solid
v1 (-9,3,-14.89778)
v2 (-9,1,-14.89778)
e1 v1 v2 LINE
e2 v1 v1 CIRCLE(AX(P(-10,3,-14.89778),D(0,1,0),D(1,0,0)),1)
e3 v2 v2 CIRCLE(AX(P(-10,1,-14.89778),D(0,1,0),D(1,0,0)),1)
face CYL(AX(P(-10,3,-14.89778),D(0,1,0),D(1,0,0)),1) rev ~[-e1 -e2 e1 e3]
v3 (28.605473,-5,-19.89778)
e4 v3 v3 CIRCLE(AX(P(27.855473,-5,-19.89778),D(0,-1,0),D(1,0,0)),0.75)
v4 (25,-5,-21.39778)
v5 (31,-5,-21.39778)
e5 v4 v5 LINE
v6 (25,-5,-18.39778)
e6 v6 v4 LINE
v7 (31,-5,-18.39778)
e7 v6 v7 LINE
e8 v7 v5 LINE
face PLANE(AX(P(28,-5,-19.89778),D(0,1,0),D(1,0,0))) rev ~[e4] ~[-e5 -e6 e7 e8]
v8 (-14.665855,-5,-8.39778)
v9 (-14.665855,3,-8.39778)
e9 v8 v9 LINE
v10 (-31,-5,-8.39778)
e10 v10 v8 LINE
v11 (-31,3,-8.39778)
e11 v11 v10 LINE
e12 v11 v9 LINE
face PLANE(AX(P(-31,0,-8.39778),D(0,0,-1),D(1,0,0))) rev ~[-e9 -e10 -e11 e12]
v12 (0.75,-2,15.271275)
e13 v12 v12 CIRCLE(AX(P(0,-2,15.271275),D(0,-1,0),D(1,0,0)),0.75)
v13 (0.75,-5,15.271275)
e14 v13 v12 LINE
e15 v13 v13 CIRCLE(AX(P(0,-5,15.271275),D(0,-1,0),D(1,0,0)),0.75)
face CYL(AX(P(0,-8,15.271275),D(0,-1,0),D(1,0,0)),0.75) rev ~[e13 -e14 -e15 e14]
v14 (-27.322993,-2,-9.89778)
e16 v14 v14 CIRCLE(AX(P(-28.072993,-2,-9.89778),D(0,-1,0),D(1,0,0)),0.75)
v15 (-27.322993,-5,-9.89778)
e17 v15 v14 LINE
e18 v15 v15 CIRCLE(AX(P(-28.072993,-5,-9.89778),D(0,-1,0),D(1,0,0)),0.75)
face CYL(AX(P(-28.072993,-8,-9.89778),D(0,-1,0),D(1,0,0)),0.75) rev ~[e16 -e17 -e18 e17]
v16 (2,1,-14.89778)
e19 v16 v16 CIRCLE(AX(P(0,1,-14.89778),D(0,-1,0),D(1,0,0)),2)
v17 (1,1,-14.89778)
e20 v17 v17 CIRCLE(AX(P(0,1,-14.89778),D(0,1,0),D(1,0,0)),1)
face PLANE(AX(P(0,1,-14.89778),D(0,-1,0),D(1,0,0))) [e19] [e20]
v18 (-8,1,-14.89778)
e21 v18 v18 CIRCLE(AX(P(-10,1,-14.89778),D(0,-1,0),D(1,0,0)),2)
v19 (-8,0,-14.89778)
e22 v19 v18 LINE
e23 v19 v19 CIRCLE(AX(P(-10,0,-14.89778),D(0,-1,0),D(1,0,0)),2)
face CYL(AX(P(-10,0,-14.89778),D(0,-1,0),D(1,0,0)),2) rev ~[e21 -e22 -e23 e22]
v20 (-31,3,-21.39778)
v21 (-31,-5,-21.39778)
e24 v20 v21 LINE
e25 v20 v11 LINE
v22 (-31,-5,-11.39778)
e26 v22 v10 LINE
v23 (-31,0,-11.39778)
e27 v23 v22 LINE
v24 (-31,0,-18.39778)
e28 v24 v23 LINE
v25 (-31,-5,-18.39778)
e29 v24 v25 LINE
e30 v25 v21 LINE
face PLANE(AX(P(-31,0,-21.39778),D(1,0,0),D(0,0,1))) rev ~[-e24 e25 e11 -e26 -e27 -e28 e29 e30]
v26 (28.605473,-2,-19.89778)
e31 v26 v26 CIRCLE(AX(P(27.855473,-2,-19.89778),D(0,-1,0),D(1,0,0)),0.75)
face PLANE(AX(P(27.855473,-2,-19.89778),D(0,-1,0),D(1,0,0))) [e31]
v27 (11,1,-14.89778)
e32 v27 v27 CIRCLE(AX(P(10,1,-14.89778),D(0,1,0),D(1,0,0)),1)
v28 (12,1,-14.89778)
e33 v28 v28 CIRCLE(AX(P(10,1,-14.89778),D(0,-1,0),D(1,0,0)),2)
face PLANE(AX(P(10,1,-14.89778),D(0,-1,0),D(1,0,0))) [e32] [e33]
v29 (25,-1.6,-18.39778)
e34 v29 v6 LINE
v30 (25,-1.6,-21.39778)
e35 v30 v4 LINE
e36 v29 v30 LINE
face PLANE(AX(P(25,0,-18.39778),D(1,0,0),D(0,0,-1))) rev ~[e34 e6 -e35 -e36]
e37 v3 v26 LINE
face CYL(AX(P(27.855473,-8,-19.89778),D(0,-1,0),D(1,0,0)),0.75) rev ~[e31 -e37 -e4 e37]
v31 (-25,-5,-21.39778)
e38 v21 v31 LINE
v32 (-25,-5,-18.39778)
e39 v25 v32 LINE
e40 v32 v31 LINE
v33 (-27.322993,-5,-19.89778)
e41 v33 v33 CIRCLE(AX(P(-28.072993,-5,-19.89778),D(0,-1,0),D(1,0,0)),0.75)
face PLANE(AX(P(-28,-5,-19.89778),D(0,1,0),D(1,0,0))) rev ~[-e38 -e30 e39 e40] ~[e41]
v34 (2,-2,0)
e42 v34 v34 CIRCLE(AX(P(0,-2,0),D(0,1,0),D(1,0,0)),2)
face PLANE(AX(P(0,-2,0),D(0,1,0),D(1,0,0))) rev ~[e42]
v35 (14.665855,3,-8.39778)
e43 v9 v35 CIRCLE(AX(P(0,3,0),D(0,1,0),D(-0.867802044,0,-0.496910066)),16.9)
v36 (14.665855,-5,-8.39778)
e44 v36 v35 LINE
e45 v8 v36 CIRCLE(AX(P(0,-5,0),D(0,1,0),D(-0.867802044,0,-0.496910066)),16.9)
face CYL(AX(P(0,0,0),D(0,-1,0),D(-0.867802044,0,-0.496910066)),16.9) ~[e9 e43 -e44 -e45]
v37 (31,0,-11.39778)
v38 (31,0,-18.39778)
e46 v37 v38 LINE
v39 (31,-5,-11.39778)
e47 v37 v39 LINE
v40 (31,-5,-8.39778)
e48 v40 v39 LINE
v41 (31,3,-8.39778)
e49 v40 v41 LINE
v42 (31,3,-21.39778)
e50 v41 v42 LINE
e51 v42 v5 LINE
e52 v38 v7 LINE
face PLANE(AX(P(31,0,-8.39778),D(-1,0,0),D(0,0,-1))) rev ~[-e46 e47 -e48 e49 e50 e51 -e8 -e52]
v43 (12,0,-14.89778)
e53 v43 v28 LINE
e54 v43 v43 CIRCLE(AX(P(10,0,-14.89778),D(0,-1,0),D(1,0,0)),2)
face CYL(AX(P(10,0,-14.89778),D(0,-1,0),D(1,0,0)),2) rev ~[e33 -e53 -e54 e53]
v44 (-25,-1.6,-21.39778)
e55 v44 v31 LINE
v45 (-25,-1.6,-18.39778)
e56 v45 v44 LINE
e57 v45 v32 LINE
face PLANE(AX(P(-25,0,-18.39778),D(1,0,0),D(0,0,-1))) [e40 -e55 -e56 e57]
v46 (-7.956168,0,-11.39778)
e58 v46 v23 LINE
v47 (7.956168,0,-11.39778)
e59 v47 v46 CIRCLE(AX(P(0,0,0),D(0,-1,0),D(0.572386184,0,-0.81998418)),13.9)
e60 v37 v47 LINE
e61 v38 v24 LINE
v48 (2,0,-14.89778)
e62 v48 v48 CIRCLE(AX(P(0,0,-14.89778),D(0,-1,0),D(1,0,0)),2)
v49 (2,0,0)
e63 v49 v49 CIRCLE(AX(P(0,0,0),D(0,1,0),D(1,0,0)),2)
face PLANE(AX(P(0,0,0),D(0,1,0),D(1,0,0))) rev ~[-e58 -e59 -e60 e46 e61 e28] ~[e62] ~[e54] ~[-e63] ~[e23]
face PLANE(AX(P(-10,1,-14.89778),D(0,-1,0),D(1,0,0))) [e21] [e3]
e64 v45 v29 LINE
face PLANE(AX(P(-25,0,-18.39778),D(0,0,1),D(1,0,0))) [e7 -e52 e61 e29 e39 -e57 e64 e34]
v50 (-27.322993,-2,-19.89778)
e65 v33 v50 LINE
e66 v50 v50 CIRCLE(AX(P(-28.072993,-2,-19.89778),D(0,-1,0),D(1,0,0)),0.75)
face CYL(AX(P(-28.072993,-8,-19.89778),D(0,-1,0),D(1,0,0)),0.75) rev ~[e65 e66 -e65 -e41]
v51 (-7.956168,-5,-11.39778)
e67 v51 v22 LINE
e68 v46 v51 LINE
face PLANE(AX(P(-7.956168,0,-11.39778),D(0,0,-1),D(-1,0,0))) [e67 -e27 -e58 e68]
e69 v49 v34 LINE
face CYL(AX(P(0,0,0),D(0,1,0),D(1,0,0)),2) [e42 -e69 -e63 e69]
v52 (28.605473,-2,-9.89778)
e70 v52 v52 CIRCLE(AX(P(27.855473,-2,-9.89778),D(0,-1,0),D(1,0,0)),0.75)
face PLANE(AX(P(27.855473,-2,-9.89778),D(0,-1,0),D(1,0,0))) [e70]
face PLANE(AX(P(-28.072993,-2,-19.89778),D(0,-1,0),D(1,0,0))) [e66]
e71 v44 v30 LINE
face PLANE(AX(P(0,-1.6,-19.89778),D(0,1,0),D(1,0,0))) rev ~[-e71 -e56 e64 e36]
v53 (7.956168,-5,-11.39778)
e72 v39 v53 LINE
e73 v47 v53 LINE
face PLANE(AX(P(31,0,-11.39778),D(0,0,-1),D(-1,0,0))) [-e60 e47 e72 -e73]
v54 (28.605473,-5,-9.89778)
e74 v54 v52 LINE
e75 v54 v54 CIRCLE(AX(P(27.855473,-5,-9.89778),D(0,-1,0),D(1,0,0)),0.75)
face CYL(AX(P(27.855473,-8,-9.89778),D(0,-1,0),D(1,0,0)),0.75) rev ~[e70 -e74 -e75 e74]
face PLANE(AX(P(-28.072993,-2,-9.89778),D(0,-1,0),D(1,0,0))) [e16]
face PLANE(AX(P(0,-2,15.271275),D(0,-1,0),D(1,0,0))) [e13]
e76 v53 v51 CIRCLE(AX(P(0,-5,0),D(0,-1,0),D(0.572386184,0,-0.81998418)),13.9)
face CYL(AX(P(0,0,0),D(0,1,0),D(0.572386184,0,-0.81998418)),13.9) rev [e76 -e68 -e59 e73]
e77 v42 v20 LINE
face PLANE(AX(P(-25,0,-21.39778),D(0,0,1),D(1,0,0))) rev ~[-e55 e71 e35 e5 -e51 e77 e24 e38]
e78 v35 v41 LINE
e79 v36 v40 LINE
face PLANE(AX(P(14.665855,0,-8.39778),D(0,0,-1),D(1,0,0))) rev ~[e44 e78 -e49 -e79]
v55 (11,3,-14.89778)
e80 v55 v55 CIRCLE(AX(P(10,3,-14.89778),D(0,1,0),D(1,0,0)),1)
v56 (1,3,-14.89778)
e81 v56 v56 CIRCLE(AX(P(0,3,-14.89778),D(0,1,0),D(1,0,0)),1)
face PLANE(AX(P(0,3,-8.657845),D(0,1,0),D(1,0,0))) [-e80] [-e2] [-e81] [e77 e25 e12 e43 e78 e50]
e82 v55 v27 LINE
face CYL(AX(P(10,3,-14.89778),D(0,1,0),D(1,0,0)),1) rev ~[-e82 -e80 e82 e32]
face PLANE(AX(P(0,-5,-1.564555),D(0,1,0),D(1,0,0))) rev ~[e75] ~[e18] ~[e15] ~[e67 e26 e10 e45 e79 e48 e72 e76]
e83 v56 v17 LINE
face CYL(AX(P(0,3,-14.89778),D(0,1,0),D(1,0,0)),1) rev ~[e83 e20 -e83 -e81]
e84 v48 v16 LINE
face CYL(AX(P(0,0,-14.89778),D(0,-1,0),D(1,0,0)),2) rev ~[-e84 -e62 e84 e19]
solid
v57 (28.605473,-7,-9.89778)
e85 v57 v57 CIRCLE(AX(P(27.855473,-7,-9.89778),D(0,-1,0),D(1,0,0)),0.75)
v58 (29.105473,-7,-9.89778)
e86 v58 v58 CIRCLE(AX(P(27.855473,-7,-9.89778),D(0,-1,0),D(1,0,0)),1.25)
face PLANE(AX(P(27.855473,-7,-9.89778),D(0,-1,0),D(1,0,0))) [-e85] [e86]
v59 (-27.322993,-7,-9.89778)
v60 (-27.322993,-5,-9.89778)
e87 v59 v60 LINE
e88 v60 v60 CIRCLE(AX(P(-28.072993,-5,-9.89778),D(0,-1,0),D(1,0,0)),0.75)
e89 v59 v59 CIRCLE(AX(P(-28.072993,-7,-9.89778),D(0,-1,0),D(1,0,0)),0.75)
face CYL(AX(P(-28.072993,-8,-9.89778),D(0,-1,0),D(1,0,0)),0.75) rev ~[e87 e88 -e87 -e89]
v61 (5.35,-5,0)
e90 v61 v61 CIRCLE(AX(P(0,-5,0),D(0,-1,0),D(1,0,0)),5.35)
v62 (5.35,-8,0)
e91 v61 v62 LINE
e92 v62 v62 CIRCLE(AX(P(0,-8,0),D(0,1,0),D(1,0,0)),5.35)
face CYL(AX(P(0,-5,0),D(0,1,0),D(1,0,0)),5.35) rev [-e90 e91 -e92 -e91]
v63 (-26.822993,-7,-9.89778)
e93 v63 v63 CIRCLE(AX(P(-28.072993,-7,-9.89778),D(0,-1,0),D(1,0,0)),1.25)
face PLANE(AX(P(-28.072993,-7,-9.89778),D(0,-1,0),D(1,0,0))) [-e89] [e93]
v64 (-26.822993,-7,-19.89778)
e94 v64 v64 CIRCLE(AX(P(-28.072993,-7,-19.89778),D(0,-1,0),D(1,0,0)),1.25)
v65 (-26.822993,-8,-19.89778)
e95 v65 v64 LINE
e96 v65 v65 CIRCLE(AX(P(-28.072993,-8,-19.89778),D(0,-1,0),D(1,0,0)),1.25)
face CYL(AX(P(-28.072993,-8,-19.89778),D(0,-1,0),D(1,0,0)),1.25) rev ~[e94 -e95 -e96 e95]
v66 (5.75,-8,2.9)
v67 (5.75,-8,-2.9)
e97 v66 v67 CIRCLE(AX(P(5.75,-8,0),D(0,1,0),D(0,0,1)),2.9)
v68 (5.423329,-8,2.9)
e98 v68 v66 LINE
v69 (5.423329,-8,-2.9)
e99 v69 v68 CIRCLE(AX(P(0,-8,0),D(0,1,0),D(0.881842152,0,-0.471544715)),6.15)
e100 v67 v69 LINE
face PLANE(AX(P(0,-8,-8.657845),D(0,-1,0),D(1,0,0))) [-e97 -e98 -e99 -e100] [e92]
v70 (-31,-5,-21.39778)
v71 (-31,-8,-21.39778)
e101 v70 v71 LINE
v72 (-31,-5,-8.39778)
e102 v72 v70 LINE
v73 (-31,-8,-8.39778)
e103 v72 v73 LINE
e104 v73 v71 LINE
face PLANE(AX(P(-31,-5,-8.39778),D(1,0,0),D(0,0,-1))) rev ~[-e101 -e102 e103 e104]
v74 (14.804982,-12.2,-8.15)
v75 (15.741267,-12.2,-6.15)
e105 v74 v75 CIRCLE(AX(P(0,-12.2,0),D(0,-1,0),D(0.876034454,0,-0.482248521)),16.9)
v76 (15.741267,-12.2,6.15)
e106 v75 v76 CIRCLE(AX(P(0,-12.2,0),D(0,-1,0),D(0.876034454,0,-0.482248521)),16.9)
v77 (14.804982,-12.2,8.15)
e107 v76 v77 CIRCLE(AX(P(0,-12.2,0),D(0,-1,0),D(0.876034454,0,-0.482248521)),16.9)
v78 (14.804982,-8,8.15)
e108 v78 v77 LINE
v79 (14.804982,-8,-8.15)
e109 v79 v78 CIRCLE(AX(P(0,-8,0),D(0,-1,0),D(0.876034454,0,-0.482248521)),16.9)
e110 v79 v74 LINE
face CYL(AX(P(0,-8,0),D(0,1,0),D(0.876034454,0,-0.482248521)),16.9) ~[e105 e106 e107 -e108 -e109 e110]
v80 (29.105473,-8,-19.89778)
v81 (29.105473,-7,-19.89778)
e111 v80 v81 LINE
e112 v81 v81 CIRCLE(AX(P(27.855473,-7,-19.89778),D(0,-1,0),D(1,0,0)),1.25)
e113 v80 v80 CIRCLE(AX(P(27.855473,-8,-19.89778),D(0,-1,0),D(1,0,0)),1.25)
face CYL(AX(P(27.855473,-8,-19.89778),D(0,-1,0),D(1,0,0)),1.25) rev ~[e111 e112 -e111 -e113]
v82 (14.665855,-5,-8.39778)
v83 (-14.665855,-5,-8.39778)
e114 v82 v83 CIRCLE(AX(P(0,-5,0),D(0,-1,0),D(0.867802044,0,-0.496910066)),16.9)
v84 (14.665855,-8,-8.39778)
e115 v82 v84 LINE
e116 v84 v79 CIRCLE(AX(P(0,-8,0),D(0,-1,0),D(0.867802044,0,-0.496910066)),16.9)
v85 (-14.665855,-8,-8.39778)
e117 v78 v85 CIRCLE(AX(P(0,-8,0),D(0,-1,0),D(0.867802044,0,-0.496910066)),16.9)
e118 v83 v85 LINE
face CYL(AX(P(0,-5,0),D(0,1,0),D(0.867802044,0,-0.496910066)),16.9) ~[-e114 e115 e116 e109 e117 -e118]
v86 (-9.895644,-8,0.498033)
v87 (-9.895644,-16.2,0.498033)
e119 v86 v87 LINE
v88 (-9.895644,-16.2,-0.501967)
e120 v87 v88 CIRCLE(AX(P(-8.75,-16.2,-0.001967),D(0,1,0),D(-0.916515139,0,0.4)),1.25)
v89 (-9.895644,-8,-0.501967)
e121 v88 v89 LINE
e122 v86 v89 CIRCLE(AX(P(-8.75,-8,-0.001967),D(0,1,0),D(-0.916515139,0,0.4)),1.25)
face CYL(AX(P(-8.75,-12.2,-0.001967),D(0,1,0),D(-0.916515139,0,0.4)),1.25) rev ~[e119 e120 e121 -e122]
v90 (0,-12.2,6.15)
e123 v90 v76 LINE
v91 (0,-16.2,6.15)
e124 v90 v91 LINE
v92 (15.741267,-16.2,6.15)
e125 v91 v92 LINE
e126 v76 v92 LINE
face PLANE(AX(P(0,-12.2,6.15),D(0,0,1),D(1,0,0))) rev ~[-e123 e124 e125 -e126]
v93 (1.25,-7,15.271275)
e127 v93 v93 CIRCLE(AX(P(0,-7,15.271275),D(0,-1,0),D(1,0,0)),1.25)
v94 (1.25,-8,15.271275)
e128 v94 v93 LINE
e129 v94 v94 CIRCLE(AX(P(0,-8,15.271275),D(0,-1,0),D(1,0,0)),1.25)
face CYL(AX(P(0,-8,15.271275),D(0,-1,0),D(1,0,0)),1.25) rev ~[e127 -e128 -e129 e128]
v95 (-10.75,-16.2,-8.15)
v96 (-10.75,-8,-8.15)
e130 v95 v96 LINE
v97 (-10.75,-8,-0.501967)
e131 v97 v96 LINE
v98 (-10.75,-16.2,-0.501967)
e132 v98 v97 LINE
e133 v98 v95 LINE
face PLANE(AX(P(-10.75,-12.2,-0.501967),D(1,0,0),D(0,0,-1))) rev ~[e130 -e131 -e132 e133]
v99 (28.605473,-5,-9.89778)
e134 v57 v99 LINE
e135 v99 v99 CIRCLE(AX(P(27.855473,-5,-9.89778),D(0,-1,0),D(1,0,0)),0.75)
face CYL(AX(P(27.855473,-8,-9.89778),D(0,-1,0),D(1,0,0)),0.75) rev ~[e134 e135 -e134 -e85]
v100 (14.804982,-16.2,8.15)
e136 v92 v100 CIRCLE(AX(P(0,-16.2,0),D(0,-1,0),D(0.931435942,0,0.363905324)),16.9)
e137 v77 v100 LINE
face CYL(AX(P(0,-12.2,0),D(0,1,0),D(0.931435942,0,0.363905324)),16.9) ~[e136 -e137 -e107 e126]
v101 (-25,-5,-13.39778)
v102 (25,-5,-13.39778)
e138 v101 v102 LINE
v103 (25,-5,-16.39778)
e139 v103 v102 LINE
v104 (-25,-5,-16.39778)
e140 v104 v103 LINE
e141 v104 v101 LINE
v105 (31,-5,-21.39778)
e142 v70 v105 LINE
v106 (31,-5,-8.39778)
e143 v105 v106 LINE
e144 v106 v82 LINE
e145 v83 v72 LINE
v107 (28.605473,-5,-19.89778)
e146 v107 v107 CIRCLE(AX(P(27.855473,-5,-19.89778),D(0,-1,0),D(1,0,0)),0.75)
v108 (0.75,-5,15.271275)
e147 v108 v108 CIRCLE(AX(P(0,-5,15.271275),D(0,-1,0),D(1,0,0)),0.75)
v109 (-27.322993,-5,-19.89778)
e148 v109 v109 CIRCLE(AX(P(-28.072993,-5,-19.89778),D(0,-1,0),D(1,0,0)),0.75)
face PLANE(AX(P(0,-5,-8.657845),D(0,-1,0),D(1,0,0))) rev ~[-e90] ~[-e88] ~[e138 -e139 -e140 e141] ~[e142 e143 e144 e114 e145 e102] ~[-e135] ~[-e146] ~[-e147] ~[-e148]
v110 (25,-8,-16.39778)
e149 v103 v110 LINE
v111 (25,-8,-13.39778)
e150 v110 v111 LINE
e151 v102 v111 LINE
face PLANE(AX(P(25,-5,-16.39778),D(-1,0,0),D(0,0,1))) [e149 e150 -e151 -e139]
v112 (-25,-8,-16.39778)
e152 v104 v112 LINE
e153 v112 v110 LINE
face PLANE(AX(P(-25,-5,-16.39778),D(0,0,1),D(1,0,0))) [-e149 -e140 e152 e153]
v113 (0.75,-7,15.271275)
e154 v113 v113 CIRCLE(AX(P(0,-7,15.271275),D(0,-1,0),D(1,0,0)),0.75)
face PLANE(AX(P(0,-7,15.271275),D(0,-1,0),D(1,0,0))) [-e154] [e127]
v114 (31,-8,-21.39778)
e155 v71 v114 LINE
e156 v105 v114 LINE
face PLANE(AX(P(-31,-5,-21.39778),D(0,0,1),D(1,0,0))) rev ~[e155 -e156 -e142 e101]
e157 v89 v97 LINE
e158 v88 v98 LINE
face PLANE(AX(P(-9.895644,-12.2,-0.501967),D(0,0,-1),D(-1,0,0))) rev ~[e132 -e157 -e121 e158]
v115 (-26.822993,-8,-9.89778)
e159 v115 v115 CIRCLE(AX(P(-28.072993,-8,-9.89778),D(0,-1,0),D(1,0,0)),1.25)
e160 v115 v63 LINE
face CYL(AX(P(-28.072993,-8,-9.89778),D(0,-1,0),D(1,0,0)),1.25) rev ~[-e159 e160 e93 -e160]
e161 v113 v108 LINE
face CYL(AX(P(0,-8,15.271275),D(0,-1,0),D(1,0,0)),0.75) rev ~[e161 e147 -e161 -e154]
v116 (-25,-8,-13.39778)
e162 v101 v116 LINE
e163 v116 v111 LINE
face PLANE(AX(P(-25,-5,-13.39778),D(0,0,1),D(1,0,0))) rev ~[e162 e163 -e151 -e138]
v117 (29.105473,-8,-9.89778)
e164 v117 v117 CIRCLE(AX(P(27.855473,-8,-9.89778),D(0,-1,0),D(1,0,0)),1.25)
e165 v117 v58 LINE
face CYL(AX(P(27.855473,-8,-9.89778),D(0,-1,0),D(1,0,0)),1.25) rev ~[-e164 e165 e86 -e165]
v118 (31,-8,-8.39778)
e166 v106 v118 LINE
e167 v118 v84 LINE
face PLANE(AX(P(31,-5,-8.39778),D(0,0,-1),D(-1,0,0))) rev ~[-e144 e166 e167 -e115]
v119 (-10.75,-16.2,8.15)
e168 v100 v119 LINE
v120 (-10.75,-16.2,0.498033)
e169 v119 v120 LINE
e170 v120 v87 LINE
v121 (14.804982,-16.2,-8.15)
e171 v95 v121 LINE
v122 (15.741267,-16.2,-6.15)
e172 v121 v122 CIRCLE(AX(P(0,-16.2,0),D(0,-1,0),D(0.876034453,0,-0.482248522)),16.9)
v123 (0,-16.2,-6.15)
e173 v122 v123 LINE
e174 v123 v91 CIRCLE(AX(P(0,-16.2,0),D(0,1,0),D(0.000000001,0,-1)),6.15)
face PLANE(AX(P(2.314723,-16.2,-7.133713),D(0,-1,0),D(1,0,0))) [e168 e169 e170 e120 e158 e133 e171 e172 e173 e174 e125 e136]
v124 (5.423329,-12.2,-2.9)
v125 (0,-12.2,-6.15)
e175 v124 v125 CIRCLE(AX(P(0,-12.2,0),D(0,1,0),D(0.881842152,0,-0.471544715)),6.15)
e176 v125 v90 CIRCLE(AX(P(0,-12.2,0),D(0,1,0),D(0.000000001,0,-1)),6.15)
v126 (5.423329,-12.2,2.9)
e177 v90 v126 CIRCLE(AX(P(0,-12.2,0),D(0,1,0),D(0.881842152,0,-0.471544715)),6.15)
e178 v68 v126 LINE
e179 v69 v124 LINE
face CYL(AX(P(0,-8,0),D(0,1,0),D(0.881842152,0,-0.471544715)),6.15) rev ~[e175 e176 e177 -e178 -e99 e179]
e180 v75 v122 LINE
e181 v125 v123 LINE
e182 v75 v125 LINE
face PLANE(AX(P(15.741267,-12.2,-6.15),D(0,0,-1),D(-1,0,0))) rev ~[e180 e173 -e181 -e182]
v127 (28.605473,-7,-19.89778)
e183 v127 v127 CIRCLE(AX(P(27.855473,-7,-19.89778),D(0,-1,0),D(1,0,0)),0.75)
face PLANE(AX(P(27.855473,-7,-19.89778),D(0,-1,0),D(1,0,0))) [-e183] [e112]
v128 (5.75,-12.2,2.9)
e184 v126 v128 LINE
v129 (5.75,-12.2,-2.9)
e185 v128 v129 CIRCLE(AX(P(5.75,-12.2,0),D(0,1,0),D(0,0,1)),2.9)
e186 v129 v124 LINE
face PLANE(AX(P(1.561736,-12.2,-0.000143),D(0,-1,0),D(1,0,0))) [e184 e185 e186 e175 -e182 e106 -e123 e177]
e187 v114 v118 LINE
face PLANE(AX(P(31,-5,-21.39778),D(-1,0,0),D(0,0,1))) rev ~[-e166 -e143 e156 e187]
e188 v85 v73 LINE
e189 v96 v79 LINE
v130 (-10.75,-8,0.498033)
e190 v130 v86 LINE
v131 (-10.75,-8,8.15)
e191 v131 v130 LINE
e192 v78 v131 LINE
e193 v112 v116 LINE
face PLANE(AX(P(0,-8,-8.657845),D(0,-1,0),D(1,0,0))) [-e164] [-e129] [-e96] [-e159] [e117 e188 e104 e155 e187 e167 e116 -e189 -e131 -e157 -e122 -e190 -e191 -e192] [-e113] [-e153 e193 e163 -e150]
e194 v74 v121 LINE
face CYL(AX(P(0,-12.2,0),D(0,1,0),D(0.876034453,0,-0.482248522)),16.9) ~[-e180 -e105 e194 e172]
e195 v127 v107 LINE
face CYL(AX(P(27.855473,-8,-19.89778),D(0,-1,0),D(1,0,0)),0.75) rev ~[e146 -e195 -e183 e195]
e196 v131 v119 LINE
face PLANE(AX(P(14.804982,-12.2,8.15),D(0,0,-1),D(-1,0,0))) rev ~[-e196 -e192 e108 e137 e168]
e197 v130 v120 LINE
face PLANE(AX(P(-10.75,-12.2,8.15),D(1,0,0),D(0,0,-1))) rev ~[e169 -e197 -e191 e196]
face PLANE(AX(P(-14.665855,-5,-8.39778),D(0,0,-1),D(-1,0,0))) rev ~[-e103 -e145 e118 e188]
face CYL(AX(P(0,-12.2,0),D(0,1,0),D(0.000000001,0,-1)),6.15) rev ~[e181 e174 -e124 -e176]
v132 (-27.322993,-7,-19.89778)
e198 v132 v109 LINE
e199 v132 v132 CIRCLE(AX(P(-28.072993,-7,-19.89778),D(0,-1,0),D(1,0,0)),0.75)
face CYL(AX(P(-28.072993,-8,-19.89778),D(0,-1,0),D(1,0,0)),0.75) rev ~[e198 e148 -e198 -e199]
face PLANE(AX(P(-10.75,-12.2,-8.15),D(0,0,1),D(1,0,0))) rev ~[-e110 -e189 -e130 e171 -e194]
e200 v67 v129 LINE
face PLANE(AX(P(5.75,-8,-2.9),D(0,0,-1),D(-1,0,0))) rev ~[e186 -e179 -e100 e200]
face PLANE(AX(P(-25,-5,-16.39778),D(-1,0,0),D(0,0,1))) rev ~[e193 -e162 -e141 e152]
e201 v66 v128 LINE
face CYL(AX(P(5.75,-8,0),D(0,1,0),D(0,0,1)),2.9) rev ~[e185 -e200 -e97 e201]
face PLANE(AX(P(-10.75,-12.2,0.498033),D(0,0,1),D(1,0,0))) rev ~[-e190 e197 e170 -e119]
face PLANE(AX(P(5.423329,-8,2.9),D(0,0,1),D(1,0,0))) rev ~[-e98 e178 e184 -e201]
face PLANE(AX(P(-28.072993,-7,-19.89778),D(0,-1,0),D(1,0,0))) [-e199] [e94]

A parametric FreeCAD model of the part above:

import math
import FreeCAD as App
import Part
import Sketcher
from FreeCAD import Vector
Q = App.Units.Quantity

doc = App.newDocument("Part")
body = doc.addObject("PartDesign::Body", "Body")

# Sketch on XZ plane
sketch1 = body.newObject("Sketcher::SketchObject", "Sketch")
sketch1.AttachmentSupport = (doc.getObject("XZ_Plane"), [""])
sketch1.MapMode = "FlatFace"
sketch1.addGeometry(Part.LineSegment(Vector(-31, -11.4, 0), Vector(-31, -8.4, 0)), False)
sketch1.addGeometry(Part.LineSegment(Vector(-31, -8.4, 0), Vector(-14.7, -8.4, 0)), False)
sketch1.addGeometry(Part.ArcOfCircle(Part.Circle(Vector(0, 0, 0), Vector(0, 0, 1), 16.9), math.radians(-30), math.radians(210)), False)
sketch1.addGeometry(Part.LineSegment(Vector(14.7, -8.4, 0), Vector(31, -8.4, 0)), False)
sketch1.addGeometry(Part.LineSegment(Vector(31, -8.4, 0), Vector(31, -11.4, 0)), False)
sketch1.addGeometry(Part.LineSegment(Vector(31, -11.4, 0), Vector(8, -11.4, 0)), False)
sketch1.addGeometry(Part.ArcOfCircle(Part.Circle(Vector(0, 0, 0), Vector(0, 0, 1), 13.9), math.radians(-55), math.radians(235)), False)
sketch1.addGeometry(Part.LineSegment(Vector(-8, -11.4, 0), Vector(-31, -11.4, 0)), False)
sketch1.addConstraint(Sketcher.Constraint("Coincident", 0, 2, 1, 1))
sketch1.addConstraint(Sketcher.Constraint("Coincident", 1, 2, 2, 2))
sketch1.addConstraint(Sketcher.Constraint("Coincident", 2, 1, 3, 1))
sketch1.addConstraint(Sketcher.Constraint("Coincident", 3, 2, 4, 1))
sketch1.addConstraint(Sketcher.Constraint("Coincident", 4, 2, 5, 1))
sketch1.addConstraint(Sketcher.Constraint("Coincident", 5, 2, 6, 1))
sketch1.addConstraint(Sketcher.Constraint("Coincident", 6, 2, 7, 1))
sketch1.addConstraint(Sketcher.Constraint("Coincident", 7, 2, 0, 1))
sketch1.addConstraint(Sketcher.Constraint("Vertical", 0))
sketch1.addConstraint(Sketcher.Constraint("Horizontal", 1))
sketch1.addConstraint(Sketcher.Constraint("Horizontal", 3))
sketch1.addConstraint(Sketcher.Constraint("Vertical", 4))
sketch1.addConstraint(Sketcher.Constraint("Horizontal", 5))
sketch1.addConstraint(Sketcher.Constraint("Horizontal", 7))
sketch1.addConstraint(Sketcher.Constraint("Coincident", 2, 3, -1, 1))
sketch1.addConstraint(Sketcher.Constraint("Coincident", 6, 3, -1, 1))
sketch1.addConstraint(Sketcher.Constraint("Symmetric", 0, 2, 3, 2, -2))
sketch1.addConstraint(Sketcher.Constraint("Horizontal", 5, 2, 6, 2))
sketch1.addConstraint(Sketcher.Constraint("Radius", 2, Q("16.9 mm")))
sketch1.addConstraint(Sketcher.Constraint("Radius", 6, Q("13.9 mm")))
sketch1.addConstraint(Sketcher.Constraint("DistanceY", 0, 1, 0, 2, Q("3 mm")))
sketch1.addConstraint(Sketcher.Constraint("DistanceX", 0, 2, -1, 1, Q("31 mm")))
sketch1.addConstraint(Sketcher.Constraint("DistanceX", 1, 1, 1, 2, Q("16.334145 mm")))
pad1 = body.newObject("PartDesign::Pad", "Pad")
pad1.Profile = sketch1
pad1.Length = 5
body2 = doc.addObject("PartDesign::Body", "Body001")

# Sketch on XZ plane
sketch2 = body2.newObject("Sketcher::SketchObject", "Sketch001")
sketch2.AttachmentSupport = (doc.getObject("XZ_Plane001"), [""])
sketch2.MapMode = "FlatFace"
sketch2.addGeometry(Part.LineSegment(Vector(-31, -21.4, 0), Vector(-31, -18.4, 0)), False)
sketch2.addGeometry(Part.LineSegment(Vector(-31, -18.4, 0), Vector(-25, -18.4, 0)), False)
sketch2.addGeometry(Part.LineSegment(Vector(-25, -18.4, 0), Vector(-25, -21.4, 0)), False)
sketch2.addGeometry(Part.LineSegment(Vector(-25, -21.4, 0), Vector(-31, -21.4, 0)), False)
sketch2.addConstraint(Sketcher.Constraint("Coincident", 0, 2, 1, 1))
sketch2.addConstraint(Sketcher.Constraint("Coincident", 1, 2, 2, 1))
sketch2.addConstraint(Sketcher.Constraint("Coincident", 2, 2, 3, 1))
sketch2.addConstraint(Sketcher.Constraint("Coincident", 3, 2, 0, 1))
sketch2.addConstraint(Sketcher.Constraint("Vertical", 0))
sketch2.addConstraint(Sketcher.Constraint("Horizontal", 1))
sketch2.addConstraint(Sketcher.Constraint("Vertical", 2))
sketch2.addConstraint(Sketcher.Constraint("Horizontal", 3))
sketch2.addConstraint(Sketcher.Constraint("DistanceX", 1, 1, 1, 2, Q("6 mm")))
sketch2.addConstraint(Sketcher.Constraint("DistanceY", 0, 1, 0, 2, Q("3 mm")))
sketch2.addConstraint(Sketcher.Constraint("DistanceX", 0, 2, -1, 1, Q("31 mm")))
sketch2.addConstraint(Sketcher.Constraint("DistanceY", 0, 2, -1, 1, Q("18.39778 mm")))
pad2 = body2.newObject("PartDesign::Pad", "Pad001")
pad2.Profile = sketch2
pad2.Length = 5
body3 = doc.addObject("PartDesign::Body", "Body002")

# Sketch on XZ plane
sketch3 = body3.newObject("Sketcher::SketchObject", "Sketch002")
sketch3.AttachmentSupport = (doc.getObject("XZ_Plane002"), [""])
sketch3.MapMode = "FlatFace"
sketch3.addGeometry(Part.LineSegment(Vector(25, -21.4, 0), Vector(25, -18.4, 0)), False)
sketch3.addGeometry(Part.LineSegment(Vector(25, -18.4, 0), Vector(31, -18.4, 0)), False)
sketch3.addGeometry(Part.LineSegment(Vector(31, -18.4, 0), Vector(31, -21.4, 0)), False)
sketch3.addGeometry(Part.LineSegment(Vector(31, -21.4, 0), Vector(25, -21.4, 0)), False)
sketch3.addConstraint(Sketcher.Constraint("Coincident", 0, 2, 1, 1))
sketch3.addConstraint(Sketcher.Constraint("Coincident", 1, 2, 2, 1))
sketch3.addConstraint(Sketcher.Constraint("Coincident", 2, 2, 3, 1))
sketch3.addConstraint(Sketcher.Constraint("Coincident", 3, 2, 0, 1))
sketch3.addConstraint(Sketcher.Constraint("Vertical", 0))
sketch3.addConstraint(Sketcher.Constraint("Horizontal", 1))
sketch3.addConstraint(Sketcher.Constraint("Vertical", 2))
sketch3.addConstraint(Sketcher.Constraint("Horizontal", 3))
sketch3.addConstraint(Sketcher.Constraint("DistanceX", 1, 1, 1, 2, Q("6 mm")))
sketch3.addConstraint(Sketcher.Constraint("DistanceY", 0, 1, 0, 2, Q("3 mm")))
sketch3.addConstraint(Sketcher.Constraint("DistanceX", -1, 1, 0, 2, Q("25 mm")))
sketch3.addConstraint(Sketcher.Constraint("DistanceY", 0, 2, -1, 1, Q("18.39778 mm")))
pad3 = body3.newObject("PartDesign::Pad", "Pad002")
pad3.Profile = sketch3
pad3.Length = 5
body.AllowCompound = True
doc.recompute()

boolean = body.newObject("PartDesign::Boolean", "Boolean")
boolean.Type = "Fuse"
boolean.addObjects([body2])
doc.recompute()

boolean2 = body.newObject("PartDesign::Boolean", "Boolean001")
boolean2.Type = "Fuse"
boolean2.addObjects([body3])

# Sketch on XZ plane
sketch4 = body.newObject("Sketcher::SketchObject", "Sketch003")
sketch4.AttachmentSupport = (doc.getObject("XZ_Plane"), [""])
sketch4.MapMode = "FlatFace"
sketch4.addGeometry(Part.LineSegment(Vector(-31, -8.4, 0), Vector(-14.7, -8.4, 0)), False)
sketch4.addGeometry(Part.ArcOfCircle(Part.Circle(Vector(0, 0, 0), Vector(0, 0, 1), 16.9), math.radians(-30), math.radians(210)), False)
sketch4.addGeometry(Part.LineSegment(Vector(14.7, -8.4, 0), Vector(31, -8.4, 0)), False)
sketch4.addGeometry(Part.LineSegment(Vector(31, -8.4, 0), Vector(31, -21.4, 0)), False)
sketch4.addGeometry(Part.LineSegment(Vector(31, -21.4, 0), Vector(-31, -21.4, 0)), False)
sketch4.addGeometry(Part.LineSegment(Vector(-31, -21.4, 0), Vector(-31, -8.4, 0)), False)
sketch4.addGeometry(Part.Circle(Vector(0, 0, 0), Vector(0, 0, 1), 2), False)
sketch4.addConstraint(Sketcher.Constraint("Coincident", 0, 2, 1, 2))
sketch4.addConstraint(Sketcher.Constraint("Coincident", 1, 1, 2, 1))
sketch4.addConstraint(Sketcher.Constraint("Coincident", 2, 2, 3, 1))
sketch4.addConstraint(Sketcher.Constraint("Coincident", 3, 2, 4, 1))
sketch4.addConstraint(Sketcher.Constraint("Coincident", 4, 2, 5, 1))
sketch4.addConstraint(Sketcher.Constraint("Coincident", 5, 2, 0, 1))
sketch4.addConstraint(Sketcher.Constraint("Horizontal", 0))
sketch4.addConstraint(Sketcher.Constraint("Horizontal", 2))
sketch4.addConstraint(Sketcher.Constraint("Vertical", 3))
sketch4.addConstraint(Sketcher.Constraint("Horizontal", 4))
sketch4.addConstraint(Sketcher.Constraint("Vertical", 5))
sketch4.addConstraint(Sketcher.Constraint("Coincident", 1, 3, -1, 1))
sketch4.addConstraint(Sketcher.Constraint("Coincident", 6, 3, -1, 1))
sketch4.addConstraint(Sketcher.Constraint("Symmetric", 2, 2, 5, 2, -2))
sketch4.addConstraint(Sketcher.Constraint("Diameter", 6, Q("4 mm")))
sketch4.addConstraint(Sketcher.Constraint("Radius", 1, Q("16.9 mm")))
sketch4.addConstraint(Sketcher.Constraint("DistanceX", 4, 2, 4, 1, Q("62 mm")))
sketch4.addConstraint(Sketcher.Constraint("DistanceY", 3, 2, 3, 1, Q("13 mm")))
sketch4.addConstraint(Sketcher.Constraint("DistanceX", 0, 1, 0, 2, Q("16.334145 mm")))
pad4 = body.newObject("PartDesign::Pad", "Pad003")
pad4.Profile = sketch4
pad4.Length = 3
pad4.Reversed = True

# Sketch on XZ plane
sketch5 = body.newObject("Sketcher::SketchObject", "Sketch004")
sketch5.AttachmentSupport = (doc.getObject("XZ_Plane"), [""])
sketch5.MapMode = "FlatFace"
sketch5.addGeometry(Part.Circle(Vector(0, 0, 0), Vector(0, 0, 1), 2), False)
sketch5.addConstraint(Sketcher.Constraint("Coincident", 0, 3, -1, 1))
sketch5.addConstraint(Sketcher.Constraint("Diameter", 0, Q("4 mm")))
pad5 = body.newObject("PartDesign::Pad", "Pad004")
pad5.Profile = sketch5
pad5.Type = "TwoLengths"
pad5.Length = 3
pad5.Length2 = 2
pad5.Reversed = True

# Sketch on XZ plane
sketch6 = body.newObject("Sketcher::SketchObject", "Sketch005")
sketch6.AttachmentSupport = (doc.getObject("XZ_Plane"), [""])
sketch6.MapMode = "FlatFace"
sketch6.AttachmentOffset = App.Placement(Vector(0, 0, -3), App.Rotation())
sketch6.addGeometry(Part.Circle(Vector(0, -14.9, 0), Vector(0, 0, 1), 1), False)
sketch6.addGeometry(Part.Circle(Vector(10, -14.9, 0), Vector(0, 0, 1), 1), False)
sketch6.addGeometry(Part.Circle(Vector(-10, -14.9, 0), Vector(0, 0, 1), 1), False)
sketch6.addConstraint(Sketcher.Constraint("Equal", 0, 1))
sketch6.addConstraint(Sketcher.Constraint("Equal", 1, 2))
sketch6.addConstraint(Sketcher.Constraint("Symmetric", 1, 3, 2, 3, -2))
sketch6.addConstraint(Sketcher.Constraint("PointOnObject", 0, 3, -2))
sketch6.addConstraint(Sketcher.Constraint("Horizontal", 0, 3, 1, 3))
sketch6.addConstraint(Sketcher.Constraint("Diameter", 0, Q("2 mm")))
sketch6.addConstraint(Sketcher.Constraint("DistanceX", -1, 1, 1, 3, Q("10 mm")))
sketch6.addConstraint(Sketcher.Constraint("DistanceY", 0, 3, -1, 1, Q("14.89778 mm")))
pocket1 = body.newObject("PartDesign::Pocket", "Pocket")
pocket1.Profile = sketch6
pocket1.Length = 6
pocket1.Reversed = True

# Sketch on XZ plane
sketch7 = body.newObject("Sketcher::SketchObject", "Sketch006")
sketch7.AttachmentSupport = (doc.getObject("XZ_Plane"), [""])
sketch7.MapMode = "FlatFace"
sketch7.addGeometry(Part.Circle(Vector(-10, -14.9, 0), Vector(0, 0, 1), 2), False)
sketch7.addGeometry(Part.Circle(Vector(0, -14.9, 0), Vector(0, 0, 1), 2), False)
sketch7.addGeometry(Part.Circle(Vector(10, -14.9, 0), Vector(0, 0, 1), 2), False)
sketch7.addConstraint(Sketcher.Constraint("Equal", 0, 1))
sketch7.addConstraint(Sketcher.Constraint("Equal", 1, 2))
sketch7.addConstraint(Sketcher.Constraint("Symmetric", 0, 3, 2, 3, -2))
sketch7.addConstraint(Sketcher.Constraint("PointOnObject", 1, 3, -2))
sketch7.addConstraint(Sketcher.Constraint("Horizontal", 0, 3, 1, 3))
sketch7.addConstraint(Sketcher.Constraint("Diameter", 0, Q("4 mm")))
sketch7.addConstraint(Sketcher.Constraint("DistanceX", 0, 3, -1, 1, Q("10 mm")))
sketch7.addConstraint(Sketcher.Constraint("DistanceY", 0, 3, -1, 1, Q("14.89778 mm")))
pocket2 = body.newObject("PartDesign::Pocket", "Pocket001")
pocket2.Profile = sketch7
pocket2.Type = "TwoLengths"
pocket2.Length = 2.2
pocket2.Length2 = 1
pocket2.Reversed = True

# Sketch on XZ plane
sketch8 = body.newObject("Sketcher::SketchObject", "Sketch007")
sketch8.AttachmentSupport = (doc.getObject("XZ_Plane"), [""])
sketch8.MapMode = "FlatFace"
sketch8.addGeometry(Part.LineSegment(Vector(-25, -21.4, 0), Vector(-25, -18.4, 0)), False)
sketch8.addGeometry(Part.LineSegment(Vector(-25, -18.4, 0), Vector(25, -18.4, 0)), False)
sketch8.addGeometry(Part.LineSegment(Vector(25, -18.4, 0), Vector(25, -21.4, 0)), False)
sketch8.addGeometry(Part.LineSegment(Vector(25, -21.4, 0), Vector(-25, -21.4, 0)), False)
sketch8.addConstraint(Sketcher.Constraint("Coincident", 0, 2, 1, 1))
sketch8.addConstraint(Sketcher.Constraint("Coincident", 1, 2, 2, 1))
sketch8.addConstraint(Sketcher.Constraint("Coincident", 2, 2, 3, 1))
sketch8.addConstraint(Sketcher.Constraint("Coincident", 3, 2, 0, 1))
sketch8.addConstraint(Sketcher.Constraint("Vertical", 0))
sketch8.addConstraint(Sketcher.Constraint("Horizontal", 1))
sketch8.addConstraint(Sketcher.Constraint("Vertical", 2))
sketch8.addConstraint(Sketcher.Constraint("Horizontal", 3))
sketch8.addConstraint(Sketcher.Constraint("DistanceX", 1, 1, 1, 2, Q("50 mm")))
sketch8.addConstraint(Sketcher.Constraint("DistanceY", 0, 1, 0, 2, Q("3 mm")))
sketch8.addConstraint(Sketcher.Constraint("DistanceX", 0, 2, -1, 1, Q("25 mm")))
sketch8.addConstraint(Sketcher.Constraint("DistanceY", 0, 2, -1, 1, Q("18.39778 mm")))
pad6 = body.newObject("PartDesign::Pad", "Pad005")
pad6.Profile = sketch8
pad6.Length = 1.6
body4 = doc.addObject("PartDesign::Body", "Body003")

# Sketch on XZ plane
sketch9 = body4.newObject("Sketcher::SketchObject", "Sketch008")
sketch9.AttachmentSupport = (doc.getObject("XZ_Plane003"), [""])
sketch9.MapMode = "FlatFace"
sketch9.AttachmentOffset = App.Placement(Vector(0, 0, 5), App.Rotation())
sketch9.addGeometry(Part.LineSegment(Vector(31, -8.4, 0), Vector(14.7, -8.4, 0)), False)
sketch9.addGeometry(Part.ArcOfCircle(Part.Circle(Vector(0, 0, 0), Vector(0, 0, 1), 16.9), math.radians(-30), math.radians(210)), False)
sketch9.addGeometry(Part.LineSegment(Vector(-14.7, -8.4, 0), Vector(-31, -8.4, 0)), False)
sketch9.addGeometry(Part.LineSegment(Vector(-31, -8.4, 0), Vector(-31, -21.4, 0)), False)
sketch9.addGeometry(Part.LineSegment(Vector(-31, -21.4, 0), Vector(31, -21.4, 0)), False)
sketch9.addGeometry(Part.LineSegment(Vector(31, -21.4, 0), Vector(31, -8.4, 0)), False)
sketch9.addGeometry(Part.LineSegment(Vector(25, -16.4, 0), Vector(-25, -16.4, 0)), False)
sketch9.addGeometry(Part.LineSegment(Vector(-25, -16.4, 0), Vector(-25, -13.4, 0)), False)
sketch9.addGeometry(Part.LineSegment(Vector(-25, -13.4, 0), Vector(25, -13.4, 0)), False)
sketch9.addGeometry(Part.LineSegment(Vector(25, -13.4, 0), Vector(25, -16.4, 0)), False)
sketch9.addConstraint(Sketcher.Constraint("Coincident", 0, 2, 1, 1))
sketch9.addConstraint(Sketcher.Constraint("Coincident", 1, 2, 2, 1))
sketch9.addConstraint(Sketcher.Constraint("Coincident", 2, 2, 3, 1))
sketch9.addConstraint(Sketcher.Constraint("Coincident", 3, 2, 4, 1))
sketch9.addConstraint(Sketcher.Constraint("Coincident", 4, 2, 5, 1))
sketch9.addConstraint(Sketcher.Constraint("Coincident", 5, 2, 0, 1))
sketch9.addConstraint(Sketcher.Constraint("Coincident", 6, 2, 7, 1))
sketch9.addConstraint(Sketcher.Constraint("Coincident", 7, 2, 8, 1))
sketch9.addConstraint(Sketcher.Constraint("Coincident", 8, 2, 9, 1))
sketch9.addConstraint(Sketcher.Constraint("Coincident", 9, 2, 6, 1))
sketch9.addConstraint(Sketcher.Constraint("Horizontal", 0))
sketch9.addConstraint(Sketcher.Constraint("Horizontal", 2))
sketch9.addConstraint(Sketcher.Constraint("Vertical", 3))
sketch9.addConstraint(Sketcher.Constraint("Horizontal", 4))
sketch9.addConstraint(Sketcher.Constraint("Vertical", 5))
sketch9.addConstraint(Sketcher.Constraint("Horizontal", 6))
sketch9.addConstraint(Sketcher.Constraint("Vertical", 7))
sketch9.addConstraint(Sketcher.Constraint("Horizontal", 8))
sketch9.addConstraint(Sketcher.Constraint("Vertical", 9))
sketch9.addConstraint(Sketcher.Constraint("Coincident", 1, 3, -1, 1))
sketch9.addConstraint(Sketcher.Constraint("Symmetric", 2, 2, 5, 2, -2))
sketch9.addConstraint(Sketcher.Constraint("Radius", 1, Q("16.9 mm")))
sketch9.addConstraint(Sketcher.Constraint("DistanceX", 4, 1, 4, 2, Q("62 mm")))
sketch9.addConstraint(Sketcher.Constraint("DistanceX", 6, 2, 6, 1, Q("50 mm")))
sketch9.addConstraint(Sketcher.Constraint("DistanceY", 3, 2, 3, 1, Q("13 mm")))
sketch9.addConstraint(Sketcher.Constraint("DistanceY", 7, 1, 7, 2, Q("3 mm")))
sketch9.addConstraint(Sketcher.Constraint("DistanceX", 6, 2, -1, 1, Q("25 mm")))
sketch9.addConstraint(Sketcher.Constraint("DistanceY", 3, 2, 6, 2, Q("5 mm")))
sketch9.addConstraint(Sketcher.Constraint("DistanceX", 0, 2, 0, 1, Q("16.334145 mm")))
pad7 = body4.newObject("PartDesign::Pad", "Pad006")
pad7.Profile = sketch9
pad7.Length = 3

# Sketch on XZ plane
sketch10 = body4.newObject("Sketcher::SketchObject", "Sketch009")
sketch10.AttachmentSupport = (doc.getObject("XZ_Plane003"), [""])
sketch10.MapMode = "FlatFace"
sketch10.AttachmentOffset = App.Placement(Vector(0, 0, 5), App.Rotation())
sketch10.addGeometry(Part.Circle(Vector(0, 0, 0), Vector(0, 0, 1), 5), False)
sketch10.addConstraint(Sketcher.Constraint("Coincident", 0, 3, -1, 1))
sketch10.addConstraint(Sketcher.Constraint("Diameter", 0, Q("10.7 mm")))
pocket3 = body4.newObject("PartDesign::Pocket", "Pocket002")
pocket3.Profile = sketch10
pocket3.Length = 5
pocket3.Reversed = True
body5 = doc.addObject("PartDesign::Body", "Body004")
body5.AllowCompound = True

# Sketch on XZ plane
sketch11 = body5.newObject("Sketcher::SketchObject", "Sketch010")
sketch11.AttachmentSupport = (doc.getObject("XZ_Plane004"), [""])
sketch11.MapMode = "FlatFace"
sketch11.AttachmentOffset = App.Placement(Vector(0, 0, 8), App.Rotation())
sketch11.addGeometry(Part.Circle(Vector(-28.1, -9.9, 0), Vector(0, 0, 1), 0.8), False)
sketch11.addGeometry(Part.Circle(Vector(27.9, -9.9, 0), Vector(0, 0, 1), 0.8), False)
sketch11.addGeometry(Part.Circle(Vector(27.9, -19.9, 0), Vector(0, 0, 1), 0.8), False)
sketch11.addGeometry(Part.Circle(Vector(-28.1, -19.9, 0), Vector(0, 0, 1), 0.8), False)
sketch11.addGeometry(Part.Circle(Vector(0, 15.3, 0), Vector(0, 0, 1), 0.8), False)
sketch11.addConstraint(Sketcher.Constraint("Equal", 0, 1))
sketch11.addConstraint(Sketcher.Constraint("Equal", 1, 2))
sketch11.addConstraint(Sketcher.Constraint("Equal", 2, 3))
sketch11.addConstraint(Sketcher.Constraint("Equal", 3, 4))
sketch11.addConstraint(Sketcher.Constraint("PointOnObject", 4, 3, -2))
sketch11.addConstraint(Sketcher.Constraint("Horizontal", 0, 3, 1, 3))
sketch11.addConstraint(Sketcher.Constraint("Horizontal", 2, 3, 3, 3))
sketch11.addConstraint(Sketcher.Constraint("Vertical", 1, 3, 2, 3))
sketch11.addConstraint(Sketcher.Constraint("Vertical", 0, 3, 3, 3))
sketch11.addConstraint(Sketcher.Constraint("Diameter", 0, Q("1.5 mm")))
sketch11.addConstraint(Sketcher.Constraint("DistanceY", 2, 3, 1, 3, Q("10 mm")))
sketch11.addConstraint(Sketcher.Constraint("DistanceY", 0, 3, -1, 1, Q("9.89778 mm")))
sketch11.addConstraint(Sketcher.Constraint("DistanceX", 0, 3, -1, 1, Q("28.072993 mm")))
sketch11.addConstraint(Sketcher.Constraint("DistanceX", -1, 1, 1, 3, Q("27.855473 mm")))
sketch11.addConstraint(Sketcher.Constraint("DistanceY", -1, 1, 4, 3, Q("15.271275 mm")))
pad8 = body5.newObject("PartDesign::Pad", "Pad007")
pad8.Profile = sketch11
pad8.Length = 6
pad8.Reversed = True
doc.recompute()

body6 = doc.addObject("PartDesign::Body", "Body005")
body6.BaseFeature = body5
boolean3 = body.newObject("PartDesign::Boolean", "Boolean002")
boolean3.Type = "Cut"
boolean3.addObjects([body6])
doc.recompute()

boolean4 = body4.newObject("PartDesign::Boolean", "Boolean003")
boolean4.Type = "Cut"
boolean4.addObjects([body5])

# Sketch on XZ plane
sketch12 = body4.newObject("Sketcher::SketchObject", "Sketch011")
sketch12.AttachmentSupport = (doc.getObject("XZ_Plane003"), [""])
sketch12.MapMode = "FlatFace"
sketch12.AttachmentOffset = App.Placement(Vector(0, 0, 8), App.Rotation())
sketch12.addGeometry(Part.LineSegment(Vector(-10.75, -8.15, 0), Vector(14.8, -8.15, 0)), False)
sketch12.addGeometry(Part.ArcOfCircle(Part.Circle(Vector(0, 0, 0), Vector(0, 0, 1), 16.9), math.radians(-29), math.radians(29)), False)
sketch12.addGeometry(Part.LineSegment(Vector(14.8, 8.15, 0), Vector(-10.75, 8.15, 0)), False)
sketch12.addGeometry(Part.LineSegment(Vector(-10.75, 8.15, 0), Vector(-10.75, 0.5, 0)), False)
sketch12.addGeometry(Part.LineSegment(Vector(-10.75, 0.5, 0), Vector(-9.9, 0.5, 0)), False)
sketch12.addGeometry(Part.ArcOfCircle(Part.Circle(Vector(-8.75, 0, 0), Vector(0, 0, 1), 1.25), math.radians(-156), math.radians(156)), False)
sketch12.addGeometry(Part.LineSegment(Vector(-9.9, -0.5, 0), Vector(-10.75, -0.5, 0)), False)
sketch12.addGeometry(Part.LineSegment(Vector(-10.75, -0.5, 0), Vector(-10.75, -8.15, 0)), False)
sketch12.addGeometry(Part.ArcOfCircle(Part.Circle(Vector(0, 0, 0), Vector(0, 0, 1), 6.15), math.radians(28), math.radians(332)), False)
sketch12.addGeometry(Part.LineSegment(Vector(5.42, 2.9, 0), Vector(5.75, 2.9, 0)), False)
sketch12.addGeometry(Part.ArcOfCircle(Part.Circle(Vector(5.75, 0, 0), Vector(0, 0, 1), 2.9), math.radians(-90), math.radians(90)), False)
sketch12.addGeometry(Part.LineSegment(Vector(5.75, -2.9, 0), Vector(5.42, -2.9, 0)), False)
sketch12.addConstraint(Sketcher.Constraint("Coincident", 0, 2, 1, 1))
sketch12.addConstraint(Sketcher.Constraint("Coincident", 1, 2, 2, 1))
sketch12.addConstraint(Sketcher.Constraint("Coincident", 2, 2, 3, 1))
sketch12.addConstraint(Sketcher.Constraint("Coincident", 3, 2, 4, 1))
sketch12.addConstraint(Sketcher.Constraint("Coincident", 4, 2, 5, 2))
sketch12.addConstraint(Sketcher.Constraint("Coincident", 5, 1, 6, 1))
sketch12.addConstraint(Sketcher.Constraint("Coincident", 6, 2, 7, 1))
sketch12.addConstraint(Sketcher.Constraint("Coincident", 7, 2, 0, 1))
sketch12.addConstraint(Sketcher.Constraint("Coincident", 8, 1, 9, 1))
sketch12.addConstraint(Sketcher.Constraint("Tangent", 9, 2, 10, 2))
sketch12.addConstraint(Sketcher.Constraint("Tangent", 10, 1, 11, 1))
sketch12.addConstraint(Sketcher.Constraint("Coincident", 11, 2, 8, 2))
sketch12.addConstraint(Sketcher.Constraint("Horizontal", 0))
sketch12.addConstraint(Sketcher.Constraint("Horizontal", 2))
sketch12.addConstraint(Sketcher.Constraint("Vertical", 3))
sketch12.addConstraint(Sketcher.Constraint("Horizontal", 4))
sketch12.addConstraint(Sketcher.Constraint("Horizontal", 6))
sketch12.addConstraint(Sketcher.Constraint("Vertical", 7))
sketch12.addConstraint(Sketcher.Constraint("Horizontal", 9))
sketch12.addConstraint(Sketcher.Constraint("Horizontal", 11))
sketch12.addConstraint(Sketcher.Constraint("Coincident", 1, 3, -1, 1))
sketch12.addConstraint(Sketcher.Constraint("Coincident", 8, 3, -1, 1))
sketch12.addConstraint(Sketcher.Constraint("Symmetric", 2, 2, 7, 2, -1))
sketch12.addConstraint(Sketcher.Constraint("PointOnObject", 10, 3, -1))
sketch12.addConstraint(Sketcher.Constraint("Vertical", 4, 2, 5, 1))
sketch12.addConstraint(Sketcher.Constraint("Radius", 1, Q("16.9 mm")))
sketch12.addConstraint(Sketcher.Constraint("Radius", 10, Q("2.9 mm")))
sketch12.addConstraint(Sketcher.Constraint("Radius", 5, Q("1.25 mm")))
sketch12.addConstraint(Sketcher.Constraint("Radius", 8, Q("6.15 mm")))
sketch12.addConstraint(Sketcher.Constraint("DistanceX", 2, 2, 5, 3, Q("2 mm")))
sketch12.addConstraint(Sketcher.Constraint("DistanceY", 5, 1, 4, 2, Q("1 mm")))
sketch12.addConstraint(Sketcher.Constraint("DistanceX", 5, 3, 10, 3, Q("14.5 mm")))
sketch12.addConstraint(Sketcher.Constraint("DistanceY", 0, 2, 1, 2, Q("16.3 mm")))
sketch12.addConstraint(Sketcher.Constraint("DistanceX", 5, 3, -1, 1, Q("8.75 mm")))
sketch12.addConstraint(Sketcher.Constraint("DistanceY", 3, 2, 3, 1, Q("7.651967 mm")))
pad9 = body4.newObject("PartDesign::Pad", "Pad008")
pad9.Profile = sketch12
pad9.Length = 4.2

# Sketch on XZ plane
sketch13 = body4.newObject("Sketcher::SketchObject", "Sketch012")
sketch13.AttachmentSupport = (doc.getObject("XZ_Plane003"), [""])
sketch13.MapMode = "FlatFace"
sketch13.AttachmentOffset = App.Placement(Vector(0, 0, 12.2), App.Rotation())
sketch13.addGeometry(Part.LineSegment(Vector(-10.8, -8.2, 0), Vector(14.8, -8.2, 0)), False)
sketch13.addGeometry(Part.ArcOfCircle(Part.Circle(Vector(0, 0, 0), Vector(0, 0, 1), 16.9), math.radians(-28.83), math.radians(-21.34)), False)
sketch13.addGeometry(Part.LineSegment(Vector(15.7, -6.2, 0), Vector(0, -6.2, 0)), False)
sketch13.addGeometry(Part.ArcOfCircle(Part.Circle(Vector(0, 0, 0), Vector(0, 0, 1), 6.2), math.radians(90), math.radians(270)), False)
sketch13.addGeometry(Part.LineSegment(Vector(0, 6.2, 0), Vector(15.7, 6.2, 0)), False)
sketch13.addGeometry(Part.ArcOfCircle(Part.Circle(Vector(0, 0, 0), Vector(0, 0, 1), 16.9), math.radians(21.34), math.radians(28.83)), False)
sketch13.addGeometry(Part.LineSegment(Vector(14.8, 8.2, 0), Vector(-10.8, 8.2, 0)), False)
sketch13.addGeometry(Part.LineSegment(Vector(-10.8, 8.2, 0), Vector(-10.8, 0.5, 0)), False)
sketch13.addGeometry(Part.LineSegment(Vector(-10.8, 0.5, 0), Vector(-9.9, 0.5, 0)), False)
sketch13.addGeometry(Part.ArcOfCircle(Part.Circle(Vector(-8.8, 0, 0), Vector(0, 0, 1), 1.2), math.radians(-156), math.radians(156)), False)
sketch13.addGeometry(Part.LineSegment(Vector(-9.9, -0.5, 0), Vector(-10.8, -0.5, 0)), False)
sketch13.addGeometry(Part.LineSegment(Vector(-10.8, -0.5, 0), Vector(-10.8, -8.2, 0)), False)
sketch13.addConstraint(Sketcher.Constraint("Coincident", 0, 2, 1, 1))
sketch13.addConstraint(Sketcher.Constraint("Coincident", 1, 2, 2, 1))
sketch13.addConstraint(Sketcher.Constraint("Tangent", 2, 2, 3, 2))
sketch13.addConstraint(Sketcher.Constraint("Tangent", 3, 1, 4, 1))
sketch13.addConstraint(Sketcher.Constraint("Coincident", 4, 2, 5, 1))
sketch13.addConstraint(Sketcher.Constraint("Coincident", 5, 2, 6, 1))
sketch13.addConstraint(Sketcher.Constraint("Coincident", 6, 2, 7, 1))
sketch13.addConstraint(Sketcher.Constraint("Coincident", 7, 2, 8, 1))
sketch13.addConstraint(Sketcher.Constraint("Coincident", 8, 2, 9, 2))
sketch13.addConstraint(Sketcher.Constraint("Coincident", 9, 1, 10, 1))
sketch13.addConstraint(Sketcher.Constraint("Coincident", 10, 2, 11, 1))
sketch13.addConstraint(Sketcher.Constraint("Coincident", 11, 2, 0, 1))
sketch13.addConstraint(Sketcher.Constraint("Horizontal", 0))
sketch13.addConstraint(Sketcher.Constraint("Horizontal", 2))
sketch13.addConstraint(Sketcher.Constraint("Horizontal", 4))
sketch13.addConstraint(Sketcher.Constraint("Horizontal", 6))
sketch13.addConstraint(Sketcher.Constraint("Vertical", 7))
sketch13.addConstraint(Sketcher.Constraint("Horizontal", 8))
sketch13.addConstraint(Sketcher.Constraint("Horizontal", 10))
sketch13.addConstraint(Sketcher.Constraint("Vertical", 11))
sketch13.addConstraint(Sketcher.Constraint("Coincident", 1, 3, -1, 1))
sketch13.addConstraint(Sketcher.Constraint("Coincident", 3, 3, -1, 1))
sketch13.addConstraint(Sketcher.Constraint("Coincident", 5, 3, -1, 1))
sketch13.addConstraint(Sketcher.Constraint("Equal", 1, 5))
sketch13.addConstraint(Sketcher.Constraint("Symmetric", 6, 2, 11, 2, -1))
sketch13.addConstraint(Sketcher.Constraint("Vertical", 8, 2, 9, 1))
sketch13.addConstraint(Sketcher.Constraint("Radius", 1, Q("16.9 mm")))
sketch13.addConstraint(Sketcher.Constraint("Radius", 3, Q("6.15 mm")))
sketch13.addConstraint(Sketcher.Constraint("Radius", 9, Q("1.25 mm")))
sketch13.addConstraint(Sketcher.Constraint("DistanceY", 0, 2, 1, 2, Q("2 mm")))
sketch13.addConstraint(Sketcher.Constraint("DistanceX", 6, 2, 9, 3, Q("2 mm")))
sketch13.addConstraint(Sketcher.Constraint("DistanceY", 9, 1, 8, 2, Q("1 mm")))
sketch13.addConstraint(Sketcher.Constraint("DistanceX", 9, 3, -1, 1, Q("8.75 mm")))
sketch13.addConstraint(Sketcher.Constraint("DistanceY", 7, 2, 7, 1, Q("7.651967 mm")))
pad10 = body4.newObject("PartDesign::Pad", "Pad009")
pad10.Profile = sketch13
pad10.Length = 4

# Sketch on XZ plane
sketch14 = body4.newObject("Sketcher::SketchObject", "Sketch013")
sketch14.AttachmentSupport = (doc.getObject("XZ_Plane003"), [""])
sketch14.MapMode = "FlatFace"
sketch14.AttachmentOffset = App.Placement(Vector(0, 0, 8), App.Rotation())
sketch14.addGeometry(Part.Circle(Vector(27.9, -19.9, 0), Vector(0, 0, 1), 1.2), False)
sketch14.addGeometry(Part.Circle(Vector(27.9, -19.9, 0), Vector(0, 0, 1), 0.8), False)
sketch14.addGeometry(Part.Circle(Vector(27.9, -9.9, 0), Vector(0, 0, 1), 1.2), False)
sketch14.addGeometry(Part.Circle(Vector(27.9, -9.9, 0), Vector(0, 0, 1), 0.8), False)
sketch14.addGeometry(Part.Circle(Vector(-28.1, -9.9, 0), Vector(0, 0, 1), 1.2), False)
sketch14.addGeometry(Part.Circle(Vector(-28.1, -9.9, 0), Vector(0, 0, 1), 0.8), False)
sketch14.addGeometry(Part.Circle(Vector(-28.1, -19.9, 0), Vector(0, 0, 1), 1.2), False)
sketch14.addGeometry(Part.Circle(Vector(-28.1, -19.9, 0), Vector(0, 0, 1), 0.8), False)
sketch14.addGeometry(Part.Circle(Vector(0, 15.3, 0), Vector(0, 0, 1), 1.2), False)
sketch14.addGeometry(Part.Circle(Vector(0, 15.3, 0), Vector(0, 0, 1), 0.8), False)
sketch14.addConstraint(Sketcher.Constraint("Coincident", 1, 3, 0, 3))
sketch14.addConstraint(Sketcher.Constraint("Coincident", 3, 3, 2, 3))
sketch14.addConstraint(Sketcher.Constraint("Coincident", 5, 3, 4, 3))
sketch14.addConstraint(Sketcher.Constraint("Coincident", 7, 3, 6, 3))
sketch14.addConstraint(Sketcher.Constraint("Coincident", 9, 3, 8, 3))
sketch14.addConstraint(Sketcher.Constraint("Equal", 0, 2))
sketch14.addConstraint(Sketcher.Constraint("Equal", 1, 3))
sketch14.addConstraint(Sketcher.Constraint("Equal", 2, 4))
sketch14.addConstraint(Sketcher.Constraint("Equal", 3, 5))
sketch14.addConstraint(Sketcher.Constraint("Equal", 4, 6))
sketch14.addConstraint(Sketcher.Constraint("Equal", 5, 7))
sketch14.addConstraint(Sketcher.Constraint("Equal", 6, 8))
sketch14.addConstraint(Sketcher.Constraint("Equal", 7, 9))
sketch14.addConstraint(Sketcher.Constraint("PointOnObject", 8, 3, -2))
sketch14.addConstraint(Sketcher.Constraint("Horizontal", 3, 3, 4, 3))
sketch14.addConstraint(Sketcher.Constraint("Horizontal", 1, 3, 6, 3))
sketch14.addConstraint(Sketcher.Constraint("Vertical", 1, 3, 2, 3))
sketch14.addConstraint(Sketcher.Constraint("Vertical", 5, 3, 6, 3))
sketch14.addConstraint(Sketcher.Constraint("Diameter", 0, Q("2.5 mm")))
sketch14.addConstraint(Sketcher.Constraint("Diameter", 1, Q("1.5 mm")))
sketch14.addConstraint(Sketcher.Constraint("DistanceY", 0, 3, 2, 3, Q("10 mm")))
sketch14.addConstraint(Sketcher.Constraint("DistanceY", 0, 3, -1, 1, Q("19.89778 mm")))
sketch14.addConstraint(Sketcher.Constraint("DistanceX", -1, 1, 0, 3, Q("27.855473 mm")))
sketch14.addConstraint(Sketcher.Constraint("DistanceX", 4, 3, -1, 1, Q("28.072993 mm")))
sketch14.addConstraint(Sketcher.Constraint("DistanceY", -1, 1, 8, 3, Q("15.271275 mm")))
pocket4 = body4.newObject("PartDesign::Pocket", "Pocket003")
pocket4.Profile = sketch14
pocket4.Length = 1

doc.recompute()
